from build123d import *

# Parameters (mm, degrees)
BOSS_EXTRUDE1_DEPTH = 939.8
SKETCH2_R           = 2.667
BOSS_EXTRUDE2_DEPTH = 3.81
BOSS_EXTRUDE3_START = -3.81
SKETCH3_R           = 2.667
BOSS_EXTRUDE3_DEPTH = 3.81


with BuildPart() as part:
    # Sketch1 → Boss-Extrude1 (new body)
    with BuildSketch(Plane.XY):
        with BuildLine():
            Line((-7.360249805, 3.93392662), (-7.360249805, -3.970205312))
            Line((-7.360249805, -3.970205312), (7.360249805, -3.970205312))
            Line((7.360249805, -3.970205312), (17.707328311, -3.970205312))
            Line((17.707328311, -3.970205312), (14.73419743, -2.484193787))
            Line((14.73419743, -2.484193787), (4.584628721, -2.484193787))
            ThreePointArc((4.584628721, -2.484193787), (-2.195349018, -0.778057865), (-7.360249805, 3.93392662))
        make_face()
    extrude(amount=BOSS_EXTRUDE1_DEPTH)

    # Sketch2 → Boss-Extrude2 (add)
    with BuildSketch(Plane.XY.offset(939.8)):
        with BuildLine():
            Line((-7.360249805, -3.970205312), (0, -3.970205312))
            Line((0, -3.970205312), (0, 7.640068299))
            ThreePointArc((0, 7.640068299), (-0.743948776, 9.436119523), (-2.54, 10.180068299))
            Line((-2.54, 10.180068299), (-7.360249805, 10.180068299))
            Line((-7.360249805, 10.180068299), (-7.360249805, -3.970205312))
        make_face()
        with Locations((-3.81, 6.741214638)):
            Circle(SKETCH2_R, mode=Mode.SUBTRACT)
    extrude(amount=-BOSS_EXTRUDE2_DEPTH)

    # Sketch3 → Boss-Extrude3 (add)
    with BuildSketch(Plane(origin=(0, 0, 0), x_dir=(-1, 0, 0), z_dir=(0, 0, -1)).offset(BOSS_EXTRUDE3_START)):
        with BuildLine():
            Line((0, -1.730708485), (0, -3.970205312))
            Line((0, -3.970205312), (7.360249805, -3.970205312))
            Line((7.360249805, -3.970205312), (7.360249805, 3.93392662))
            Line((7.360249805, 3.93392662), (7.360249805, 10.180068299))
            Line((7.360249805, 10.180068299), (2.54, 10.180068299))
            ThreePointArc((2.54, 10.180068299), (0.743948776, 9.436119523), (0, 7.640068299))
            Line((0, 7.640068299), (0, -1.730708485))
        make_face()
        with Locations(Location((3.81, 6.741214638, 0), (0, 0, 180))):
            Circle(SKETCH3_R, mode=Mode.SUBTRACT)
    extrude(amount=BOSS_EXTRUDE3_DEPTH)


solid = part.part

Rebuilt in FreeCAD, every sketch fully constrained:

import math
import FreeCAD as App
import Part
import Sketcher
Q = App.Units.Quantity

doc = App.newDocument("Part")
body = doc.addObject("PartDesign::Body", "Body")

sketch1 = body.newObject("Sketcher::SketchObject", "Sketch")
sketch1.AttachmentSupport = (doc.getObject("XY_Plane"), [""])
sketch1.MapMode = "FlatFace"
sketch1.addGeometry([
    Part.LineSegment(App.Vector(-7.4, 3.9, 0), App.Vector(-7.4, -4, 0)),
    Part.LineSegment(App.Vector(-7.4, -4, 0), App.Vector(17.7, -4, 0)),
    Part.LineSegment(App.Vector(17.7, -4, 0), App.Vector(14.7, -2.5, 0)),
    Part.LineSegment(App.Vector(14.7, -2.5, 0), App.Vector(4.6, -2.5, 0)),
    Part.ArcOfCircle(Part.Circle(App.Vector(4.6, 11.8, 0), App.Vector(0, 0, 1), 14.3), math.radians(-146), math.radians(-90)),
], False)
sketch1.addConstraint([
    Sketcher.Constraint("Coincident", 0, 2, 1, 1),
    Sketcher.Constraint("Coincident", 1, 2, 2, 1),
    Sketcher.Constraint("Coincident", 2, 2, 3, 1),
    Sketcher.Constraint("Tangent", 3, 2, 4, 2),
    Sketcher.Constraint("Coincident", 4, 1, 0, 1),
    Sketcher.Constraint("Vertical", 0),
    Sketcher.Constraint("Horizontal", 1),
    Sketcher.Constraint("Horizontal", 3),
    Sketcher.Constraint("Radius", 4, Q("14.324474 mm")),
    Sketcher.Constraint("DistanceX", 1, 1, 1, 2, Q("25.067578 mm")),
    Sketcher.Constraint("DistanceX", 3, 2, 3, 1, Q("10.149569 mm")),
    Sketcher.Constraint("DistanceY", 0, 2, 0, 1, Q("7.904132 mm")),
    Sketcher.Constraint("DistanceX", 4, 3, 1, 2, Q("13.1227 mm")),
    Sketcher.Constraint("DistanceX", -1, 1, 4, 3, Q("4.584629 mm")),
    Sketcher.Constraint("DistanceY", -1, 1, 4, 3, Q("11.84028 mm")),
])
pad1 = body.newObject("PartDesign::Pad", "Pad")
pad1.Profile = sketch1
pad1.Length = Q("37 in")

sketch2 = body.newObject("Sketcher::SketchObject", "Sketch001")
sketch2.AttachmentSupport = (doc.getObject("XY_Plane"), [""])
sketch2.MapMode = "FlatFace"
sketch2.AttachmentOffset = App.Placement(App.Vector(0, 0, 37 * 25.4), App.Rotation())
sketch2.addGeometry([
    Part.LineSegment(App.Vector(-7.4, -4, 0), App.Vector(0, -4, 0)),
    Part.LineSegment(App.Vector(0, -4, 0), App.Vector(0, 7.6, 0)),
    Part.ArcOfCircle(Part.Circle(App.Vector(-2.5, 7.6, 0), App.Vector(0, 0, 1), 2.5), math.radians(0), math.radians(90)),
    Part.LineSegment(App.Vector(-2.5, 10.2, 0), App.Vector(-7.4, 10.2, 0)),
    Part.LineSegment(App.Vector(-7.4, 10.2, 0), App.Vector(-7.4, -4, 0)),
    Part.Circle(App.Vector(-3.8, 6.7, 0), App.Vector(0, 0, 1), 2.7),
], False)
sketch2.addConstraint([
    Sketcher.Constraint("Coincident", 0, 2, 1, 1),
    Sketcher.Constraint("Tangent", 1, 2, 2, 1),
    Sketcher.Constraint("Tangent", 2, 2, 3, 1),
    Sketcher.Constraint("Coincident", 3, 2, 4, 1),
    Sketcher.Constraint("Coincident", 4, 2, 0, 1),
    Sketcher.Constraint("Horizontal", 0),
    Sketcher.Constraint("Vertical", 1),
    Sketcher.Constraint("Horizontal", 3),
    Sketcher.Constraint("Vertical", 4),
    Sketcher.Constraint("PointOnObject", 0, 2, -2),
    Sketcher.Constraint("Radius", 2, Q("0.1 in")),
    Sketcher.Constraint("Diameter", 5, Q("0.21 in")),
    Sketcher.Constraint("DistanceX", 5, 3, -1, 1, Q("0.15 in")),
    Sketcher.Constraint("DistanceX", 0, 1, 0, 2, Q("7.36025 mm")),
    Sketcher.Constraint("DistanceY", 1, 1, 1, 2, Q("11.610274 mm")),
    Sketcher.Constraint("DistanceY", -1, 1, 2, 3, Q("7.640068 mm")),
    Sketcher.Constraint("DistanceY", 0, 2, 5, 3, Q("10.71142 mm")),
])
pad2 = body.newObject("PartDesign::Pad", "Pad001")
pad2.Profile = sketch2
pad2.Length = Q("0.15 in")
pad2.Reversed = True

sketch3 = body.newObject("Sketcher::SketchObject", "Sketch002")
sketch3.AttachmentSupport = (doc.getObject("XY_Plane"), [""])
sketch3.MapMode = "FlatFace"
sketch3.AttachmentOffset = App.Placement(App.Vector(0, 0, 0.15 * 25.4), App.Rotation())
sketch3.addGeometry([
    Part.LineSegment(App.Vector(0, -4, 0), App.Vector(-7.4, -4, 0)),
    Part.LineSegment(App.Vector(-7.4, -4, 0), App.Vector(-7.4, 10.2, 0)),
    Part.LineSegment(App.Vector(-7.4, 10.2, 0), App.Vector(-2.5, 10.2, 0)),
    Part.ArcOfCircle(Part.Circle(App.Vector(-2.5, 7.6, 0), App.Vector(0, 0, 1), 2.5), math.radians(0), math.radians(90)),
    Part.LineSegment(App.Vector(0, 7.6, 0), App.Vector(0, -4, 0)),
    Part.Circle(App.Vector(-3.8, 6.7, 0), App.Vector(0, 0, 1), 2.7),
], False)
sketch3.addConstraint([
    Sketcher.Constraint("Coincident", 0, 2, 1, 1),
    Sketcher.Constraint("Coincident", 1, 2, 2, 1),
    Sketcher.Constraint("Tangent", 2, 2, 3, 2),
    Sketcher.Constraint("Tangent", 3, 1, 4, 1),
    Sketcher.Constraint("Coincident", 4, 2, 0, 1),
    Sketcher.Constraint("Horizontal", 0),
    Sketcher.Constraint("Vertical", 1),
    Sketcher.Constraint("Horizontal", 2),
    Sketcher.Constraint("Vertical", 4),
    Sketcher.Constraint("PointOnObject", 3, 1, -2),
    Sketcher.Constraint("Radius", 3, Q("0.1 in")),
    Sketcher.Constraint("Diameter", 5, Q("0.21 in")),
    Sketcher.Constraint("DistanceX", 5, 3, -1, 1, Q("0.15 in")),
    Sketcher.Constraint("DistanceX", 0, 2, 0, 1, Q("7.36025 mm")),
    Sketcher.Constraint("DistanceY", 1, 1, 1, 2, Q("14.150274 mm")),
    Sketcher.Constraint("DistanceY", -1, 1, 3, 3, Q("7.640068 mm")),
    Sketcher.Constraint("DistanceY", 0, 2, 5, 3, Q("10.71142 mm")),
])
pad3 = body.newObject("PartDesign::Pad", "Pad002")
pad3.Profile = sketch3
pad3.Length = Q("0.15 in")
pad3.Reversed = True

doc.recompute()
